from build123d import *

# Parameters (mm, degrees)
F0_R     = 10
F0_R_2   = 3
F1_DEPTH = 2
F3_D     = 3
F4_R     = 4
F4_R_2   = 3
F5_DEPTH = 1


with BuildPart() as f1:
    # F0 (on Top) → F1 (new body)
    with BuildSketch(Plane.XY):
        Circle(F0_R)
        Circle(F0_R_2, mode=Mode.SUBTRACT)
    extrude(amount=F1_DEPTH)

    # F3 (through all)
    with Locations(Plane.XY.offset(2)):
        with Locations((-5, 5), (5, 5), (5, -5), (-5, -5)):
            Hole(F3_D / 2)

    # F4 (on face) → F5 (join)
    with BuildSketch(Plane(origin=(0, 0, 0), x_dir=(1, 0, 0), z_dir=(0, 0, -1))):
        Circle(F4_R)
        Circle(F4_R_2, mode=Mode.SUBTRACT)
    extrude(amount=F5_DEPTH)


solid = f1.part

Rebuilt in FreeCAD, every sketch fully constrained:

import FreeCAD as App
import Part
import Sketcher

V = App.Vector
Q = App.Units.Quantity

doc = App.newDocument("Part")
params = doc.addObject("Spreadsheet::Sheet", "Params")
for row, (alias, value) in enumerate([
    ("sketch1_diameter", "20 mm"),
    ("sketch1_diameter2", "6 mm"),
    ("pad1_length", "2 mm"),
    ("sketch2_diameter", "3 mm"),
    ("hole_diameter", "3 mm"),
    ("sketch3_diameter", "8 mm"),
    ("sketch3_diameter2", "6 mm"),
    ("pad2_length", "1 mm"),
], start=1):
    params.set(f"A{row}", alias)
    params.set(f"B{row}", "=" + value)
    params.setAlias(f"B{row}", alias)

body = doc.addObject("PartDesign::Body", "Body")

# Sketch on XY plane
sketch1 = body.newObject("Sketcher::SketchObject", "Sketch")
sketch1.AttachmentSupport = (doc.getObject("XY_Plane"), [""])
sketch1.MapMode = "FlatFace"
sketch1.addGeometry([
    Part.Circle(V(0, 0, 0), V(0, 0, 1), 10),
    Part.Circle(V(0, 0, 0), V(0, 0, 1), 3),
], False)
sketch1.addConstraint([
    Sketcher.Constraint("Coincident", 0, 3, -1, 1),
    Sketcher.Constraint("Coincident", 1, 3, -1, 1),
    Sketcher.Constraint("Diameter", 0, Q("20 mm")),
    Sketcher.Constraint("Diameter", 1, Q("6 mm")),
])
sketch1.setExpression("Constraints[2]", "Params.sketch1_diameter")
sketch1.setExpression("Constraints[3]", "Params.sketch1_diameter2")
pad1 = body.newObject("PartDesign::Pad", "Pad")
pad1.Profile = sketch1
pad1.setExpression("Length", "Params.pad1_length")

# Sketch on XY plane
sketch2 = body.newObject("Sketcher::SketchObject", "Sketch001")
sketch2.AttachmentSupport = (doc.getObject("XY_Plane"), [""])
sketch2.MapMode = "FlatFace"
sketch2.AttachmentOffset = App.Placement(V(0, 0, 2), App.Rotation())
sketch2.addGeometry([
    Part.Circle(V(-5, 5, 0), V(0, 0, 1), 1.5),
    Part.Circle(V(5, 5, 0), V(0, 0, 1), 1.5),
    Part.Circle(V(5, -5, 0), V(0, 0, 1), 1.5),
    Part.Circle(V(-5, -5, 0), V(0, 0, 1), 1.5),
], False)
sketch2.addConstraint([
    Sketcher.Constraint("Equal", 0, 1),
    Sketcher.Constraint("Equal", 1, 2),
    Sketcher.Constraint("Equal", 2, 3),
    Sketcher.Constraint("Symmetric", 0, 3, 2, 3, -1, 1),
    Sketcher.Constraint("Symmetric", 1, 3, 3, 3, -1, 1),
    Sketcher.Constraint("Symmetric", 0, 3, 1, 3, -2),
    Sketcher.Constraint("Diameter", 0, Q("3 mm")),
    Sketcher.Constraint("DistanceX", 0, 3, -1, 1, Q("5 mm")),
    Sketcher.Constraint("DistanceY", -1, 1, 0, 3, Q("5 mm")),
])
sketch2.setExpression("Constraints[6]", "Params.sketch2_diameter")
doc.recompute()
hole = body.newObject("PartDesign::Hole", "Hole")
hole.Profile = sketch2
hole.ThreadType = "None"
hole.setExpression("Diameter", "Params.hole_diameter")
hole.DepthType = "ThroughAll"

# Sketch on XY plane
sketch3 = body.newObject("Sketcher::SketchObject", "Sketch002")
sketch3.AttachmentSupport = (doc.getObject("XY_Plane"), [""])
sketch3.MapMode = "FlatFace"
sketch3.addGeometry([
    Part.Circle(V(0, 0, 0), V(0, 0, 1), 4),
    Part.Circle(V(0, 0, 0), V(0, 0, 1), 3),
], False)
sketch3.addConstraint([
    Sketcher.Constraint("Coincident", 0, 3, -1, 1),
    Sketcher.Constraint("Coincident", 1, 3, -1, 1),
    Sketcher.Constraint("Diameter", 0, Q("8 mm")),
    Sketcher.Constraint("Diameter", 1, Q("6 mm")),
])
sketch3.setExpression("Constraints[2]", "Params.sketch3_diameter")
sketch3.setExpression("Constraints[3]", "Params.sketch3_diameter2")
pad2 = body.newObject("PartDesign::Pad", "Pad001")
pad2.Profile = sketch3
pad2.setExpression("Length", "Params.pad2_length")
pad2.Reversed = True

doc.recompute()
